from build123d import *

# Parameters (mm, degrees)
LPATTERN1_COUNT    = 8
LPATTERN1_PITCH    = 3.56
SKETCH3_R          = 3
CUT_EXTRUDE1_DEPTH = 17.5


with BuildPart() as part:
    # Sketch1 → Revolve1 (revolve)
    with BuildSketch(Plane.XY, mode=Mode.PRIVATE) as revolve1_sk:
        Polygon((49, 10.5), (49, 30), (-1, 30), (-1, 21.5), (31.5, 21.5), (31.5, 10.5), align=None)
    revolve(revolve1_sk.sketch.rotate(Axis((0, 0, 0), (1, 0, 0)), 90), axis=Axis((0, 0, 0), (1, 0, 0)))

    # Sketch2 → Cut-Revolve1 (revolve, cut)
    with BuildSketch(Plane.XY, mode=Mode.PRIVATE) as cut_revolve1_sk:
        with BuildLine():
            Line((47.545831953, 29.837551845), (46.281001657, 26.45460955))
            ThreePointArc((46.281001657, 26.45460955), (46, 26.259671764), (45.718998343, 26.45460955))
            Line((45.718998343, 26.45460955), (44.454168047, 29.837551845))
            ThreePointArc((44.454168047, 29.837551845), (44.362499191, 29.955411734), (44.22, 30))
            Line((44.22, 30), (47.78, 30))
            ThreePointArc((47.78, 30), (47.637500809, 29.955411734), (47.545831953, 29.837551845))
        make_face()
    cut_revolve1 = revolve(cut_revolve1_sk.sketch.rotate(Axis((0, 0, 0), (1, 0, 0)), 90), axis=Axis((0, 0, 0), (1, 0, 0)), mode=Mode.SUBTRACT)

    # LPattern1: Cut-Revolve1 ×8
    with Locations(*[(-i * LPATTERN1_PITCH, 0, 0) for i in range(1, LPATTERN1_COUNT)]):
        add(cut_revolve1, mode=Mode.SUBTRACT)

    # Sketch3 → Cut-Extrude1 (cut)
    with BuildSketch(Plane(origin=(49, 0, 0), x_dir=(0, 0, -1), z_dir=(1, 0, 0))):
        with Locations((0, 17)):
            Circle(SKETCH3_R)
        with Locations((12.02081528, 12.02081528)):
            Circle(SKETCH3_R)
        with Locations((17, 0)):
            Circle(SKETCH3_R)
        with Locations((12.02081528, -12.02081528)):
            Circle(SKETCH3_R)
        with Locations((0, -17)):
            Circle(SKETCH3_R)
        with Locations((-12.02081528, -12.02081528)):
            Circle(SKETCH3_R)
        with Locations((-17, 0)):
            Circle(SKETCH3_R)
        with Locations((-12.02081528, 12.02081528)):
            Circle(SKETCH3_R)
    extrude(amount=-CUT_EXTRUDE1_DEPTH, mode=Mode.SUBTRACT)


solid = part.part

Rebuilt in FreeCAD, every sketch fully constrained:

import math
import FreeCAD as App
import Part
import Sketcher
from FreeCAD import Vector
Q = App.Units.Quantity


def add_polygon(sketch, points):
    """Adds a closed chain of lines whose ends are joined by coincident constraints."""
    first, n = sketch.GeometryCount, len(points)
    for a, b in zip(points, points[1:] + points[:1]):
        sketch.addGeometry(Part.LineSegment(App.Vector(*a, 0), App.Vector(*b, 0)), False)
    for i in range(n):
        sketch.addConstraint(Sketcher.Constraint("Coincident", first + i, 2, first + (i + 1) % n, 1))

doc = App.newDocument("Part")
body = doc.addObject("PartDesign::Body", "Body")

# Sketch on XY plane
sketch1 = body.newObject("Sketcher::SketchObject", "Sketch")
sketch1.AttachmentSupport = (doc.getObject("XY_Plane"), [""])
sketch1.MapMode = "FlatFace"
add_polygon(sketch1, [(49, 10.5), (49, 30), (-1, 30), (-1, 21.5), (31.5, 21.5), (31.5, 10.5)])  # lines 0-5
sketch1.addConstraint(Sketcher.Constraint("Vertical", 0))
sketch1.addConstraint(Sketcher.Constraint("Horizontal", 1))
sketch1.addConstraint(Sketcher.Constraint("Vertical", 2))
sketch1.addConstraint(Sketcher.Constraint("Horizontal", 3))
sketch1.addConstraint(Sketcher.Constraint("Vertical", 4))
sketch1.addConstraint(Sketcher.Constraint("Horizontal", 5))
sketch1.addConstraint(Sketcher.Constraint("DistanceX", 1, 2, 1, 1, 50.0))
sketch1.addConstraint(Sketcher.Constraint("DistanceY", 4, 2, 4, 1, 11.0))
sketch1.addConstraint(Sketcher.Constraint("DistanceX", 3, 1, 3, 2, 32.5))
sketch1.addConstraint(Sketcher.Constraint("DistanceY", 0, 1, 0, 2, 19.5))
sketch1.addConstraint(Sketcher.Constraint("DistanceX", -1, 1, 0, 2, 49.0))
sketch1.addConstraint(Sketcher.Constraint("DistanceY", -1, 1, 0, 2, 30.0))
revolution = body.newObject("PartDesign::Revolution", "Revolution")
revolution.Profile = sketch1
revolution.ReferenceAxis = (sketch1, ["H_Axis"])
revolution.Angle = 360

# Sketch on XY plane
sketch2 = body.newObject("Sketcher::SketchObject", "Sketch001")
sketch2.AttachmentSupport = (doc.getObject("XY_Plane"), [""])
sketch2.MapMode = "FlatFace"
sketch2.addGeometry(Part.LineSegment(Vector(46.281002, 26.45461, 0), Vector(47.545832, 29.837552, 0)), False)
sketch2.addGeometry(Part.ArcOfCircle(Part.Circle(Vector(47.78, 29.75, 0), Vector(0, 0, 1), 0.25), math.radians(90), math.radians(159.5)), False)
sketch2.addGeometry(Part.LineSegment(Vector(47.78, 30, 0), Vector(44.22, 30, 0)), False)
sketch2.addGeometry(Part.ArcOfCircle(Part.Circle(Vector(44.22, 29.75, 0), Vector(0, 0, 1), 0.25), math.radians(20.5), math.radians(90)), False)
sketch2.addGeometry(Part.LineSegment(Vector(44.454168, 29.837552, 0), Vector(45.718998, 26.45461, 0)), False)
sketch2.addGeometry(Part.ArcOfCircle(Part.Circle(Vector(46, 26.559672, 0), Vector(0, 0, 1), 0.3), math.radians(-159.5), math.radians(-20.5)), False)
sketch2.addConstraint(Sketcher.Constraint("Tangent", 0, 2, 1, 2))
sketch2.addConstraint(Sketcher.Constraint("Tangent", 1, 1, 2, 1))
sketch2.addConstraint(Sketcher.Constraint("Tangent", 2, 2, 3, 2))
sketch2.addConstraint(Sketcher.Constraint("Tangent", 3, 1, 4, 1))
sketch2.addConstraint(Sketcher.Constraint("Tangent", 4, 2, 5, 1))
sketch2.addConstraint(Sketcher.Constraint("Tangent", 5, 2, 0, 1))
sketch2.addConstraint(Sketcher.Constraint("Horizontal", 2))
sketch2.addConstraint(Sketcher.Constraint("Equal", 1, 3))
sketch2.addConstraint(Sketcher.Constraint("Horizontal", 0, 2, 3, 1))
sketch2.addConstraint(Sketcher.Constraint("Radius", 5, 0.3))
sketch2.addConstraint(Sketcher.Constraint("Radius", 1, 0.25))
sketch2.addConstraint(Sketcher.Constraint("DistanceX", -1, 1, 5, 3, 46.0))
sketch2.addConstraint(Sketcher.Constraint("DistanceY", -1, 1, 1, 1, 30.0))
sketch2.addConstraint(Sketcher.Constraint("Angle", 0, Q("69.5 deg")))
sketch2.addConstraint(Sketcher.Constraint("DistanceX", 2, 2, 2, 1, 3.56))
groove = body.newObject("PartDesign::Groove", "Groove")
groove.Profile = sketch2
groove.ReferenceAxis = (sketch2, ["H_Axis"])
groove.Angle = 360
doc.recompute()

linearpattern = body.newObject("PartDesign::LinearPattern", "LinearPattern")
linearpattern.Originals = [groove]
linearpattern.Direction = (doc.getObject("X_Axis"), [""])
linearpattern.Mode = "offset"
linearpattern.Offset = 3.56
linearpattern.Occurrences = 8
linearpattern.Reversed = True
body.Tip = linearpattern

# Sketch on YZ plane
sketch3 = body.newObject("Sketcher::SketchObject", "Sketch002")
sketch3.AttachmentSupport = (doc.getObject("YZ_Plane"), [""])
sketch3.MapMode = "FlatFace"
sketch3.AttachmentOffset = App.Placement(Vector(0, 0, 49), App.Rotation())
sketch3.addGeometry(Part.Circle(Vector(17, 0, 0), Vector(0, 0, 1), 3), False)
sketch3.addGeometry(Part.Circle(Vector(12.020815, -12.020815, 0), Vector(0, 0, 1), 3), False)
sketch3.addGeometry(Part.Circle(Vector(0, -17, 0), Vector(0, 0, 1), 3), False)
sketch3.addGeometry(Part.Circle(Vector(-12.020815, -12.020815, 0), Vector(0, 0, 1), 3), False)
sketch3.addGeometry(Part.Circle(Vector(-17, 0, 0), Vector(0, 0, 1), 3), False)
sketch3.addGeometry(Part.Circle(Vector(-12.020815, 12.020815, 0), Vector(0, 0, 1), 3), False)
sketch3.addGeometry(Part.Circle(Vector(0, 17, 0), Vector(0, 0, 1), 3), False)
sketch3.addGeometry(Part.Circle(Vector(12.020815, 12.020815, 0), Vector(0, 0, 1), 3), False)
sketch3.addConstraint(Sketcher.Constraint("Equal", 0, 1))
sketch3.addConstraint(Sketcher.Constraint("Equal", 1, 2))
sketch3.addConstraint(Sketcher.Constraint("Equal", 2, 3))
sketch3.addConstraint(Sketcher.Constraint("Equal", 3, 4))
sketch3.addConstraint(Sketcher.Constraint("Equal", 4, 5))
sketch3.addConstraint(Sketcher.Constraint("Equal", 5, 6))
sketch3.addConstraint(Sketcher.Constraint("Equal", 6, 7))
sketch3.addConstraint(Sketcher.Constraint("Symmetric", 0, 3, 4, 3, -1, 1))
sketch3.addConstraint(Sketcher.Constraint("Symmetric", 1, 3, 5, 3, -1, 1))
sketch3.addConstraint(Sketcher.Constraint("Symmetric", 2, 3, 6, 3, -1, 1))
sketch3.addConstraint(Sketcher.Constraint("Symmetric", 3, 3, 7, 3, -1, 1))
sketch3.addConstraint(Sketcher.Constraint("Symmetric", 1, 3, 3, 3, -2))
sketch3.addConstraint(Sketcher.Constraint("PointOnObject", 0, 3, -1))
sketch3.addConstraint(Sketcher.Constraint("PointOnObject", 2, 3, -2))
sketch3.addConstraint(Sketcher.Constraint("Diameter", 0, 6.0))
sketch3.addConstraint(Sketcher.Constraint("DistanceX", -1, 1, 0, 3, 17.0))
sketch3.addConstraint(Sketcher.Constraint("DistanceY", 2, 3, -1, 1, 17.0))
sketch3.addConstraint(Sketcher.Constraint("DistanceX", 3, 3, 1, 3, 24.041631))
sketch3.addConstraint(Sketcher.Constraint("DistanceY", 3, 3, 5, 3, 24.041631))
pocket1 = body.newObject("PartDesign::Pocket", "Pocket")
pocket1.Profile = sketch3
pocket1.Length = 17.5

doc.recompute()
